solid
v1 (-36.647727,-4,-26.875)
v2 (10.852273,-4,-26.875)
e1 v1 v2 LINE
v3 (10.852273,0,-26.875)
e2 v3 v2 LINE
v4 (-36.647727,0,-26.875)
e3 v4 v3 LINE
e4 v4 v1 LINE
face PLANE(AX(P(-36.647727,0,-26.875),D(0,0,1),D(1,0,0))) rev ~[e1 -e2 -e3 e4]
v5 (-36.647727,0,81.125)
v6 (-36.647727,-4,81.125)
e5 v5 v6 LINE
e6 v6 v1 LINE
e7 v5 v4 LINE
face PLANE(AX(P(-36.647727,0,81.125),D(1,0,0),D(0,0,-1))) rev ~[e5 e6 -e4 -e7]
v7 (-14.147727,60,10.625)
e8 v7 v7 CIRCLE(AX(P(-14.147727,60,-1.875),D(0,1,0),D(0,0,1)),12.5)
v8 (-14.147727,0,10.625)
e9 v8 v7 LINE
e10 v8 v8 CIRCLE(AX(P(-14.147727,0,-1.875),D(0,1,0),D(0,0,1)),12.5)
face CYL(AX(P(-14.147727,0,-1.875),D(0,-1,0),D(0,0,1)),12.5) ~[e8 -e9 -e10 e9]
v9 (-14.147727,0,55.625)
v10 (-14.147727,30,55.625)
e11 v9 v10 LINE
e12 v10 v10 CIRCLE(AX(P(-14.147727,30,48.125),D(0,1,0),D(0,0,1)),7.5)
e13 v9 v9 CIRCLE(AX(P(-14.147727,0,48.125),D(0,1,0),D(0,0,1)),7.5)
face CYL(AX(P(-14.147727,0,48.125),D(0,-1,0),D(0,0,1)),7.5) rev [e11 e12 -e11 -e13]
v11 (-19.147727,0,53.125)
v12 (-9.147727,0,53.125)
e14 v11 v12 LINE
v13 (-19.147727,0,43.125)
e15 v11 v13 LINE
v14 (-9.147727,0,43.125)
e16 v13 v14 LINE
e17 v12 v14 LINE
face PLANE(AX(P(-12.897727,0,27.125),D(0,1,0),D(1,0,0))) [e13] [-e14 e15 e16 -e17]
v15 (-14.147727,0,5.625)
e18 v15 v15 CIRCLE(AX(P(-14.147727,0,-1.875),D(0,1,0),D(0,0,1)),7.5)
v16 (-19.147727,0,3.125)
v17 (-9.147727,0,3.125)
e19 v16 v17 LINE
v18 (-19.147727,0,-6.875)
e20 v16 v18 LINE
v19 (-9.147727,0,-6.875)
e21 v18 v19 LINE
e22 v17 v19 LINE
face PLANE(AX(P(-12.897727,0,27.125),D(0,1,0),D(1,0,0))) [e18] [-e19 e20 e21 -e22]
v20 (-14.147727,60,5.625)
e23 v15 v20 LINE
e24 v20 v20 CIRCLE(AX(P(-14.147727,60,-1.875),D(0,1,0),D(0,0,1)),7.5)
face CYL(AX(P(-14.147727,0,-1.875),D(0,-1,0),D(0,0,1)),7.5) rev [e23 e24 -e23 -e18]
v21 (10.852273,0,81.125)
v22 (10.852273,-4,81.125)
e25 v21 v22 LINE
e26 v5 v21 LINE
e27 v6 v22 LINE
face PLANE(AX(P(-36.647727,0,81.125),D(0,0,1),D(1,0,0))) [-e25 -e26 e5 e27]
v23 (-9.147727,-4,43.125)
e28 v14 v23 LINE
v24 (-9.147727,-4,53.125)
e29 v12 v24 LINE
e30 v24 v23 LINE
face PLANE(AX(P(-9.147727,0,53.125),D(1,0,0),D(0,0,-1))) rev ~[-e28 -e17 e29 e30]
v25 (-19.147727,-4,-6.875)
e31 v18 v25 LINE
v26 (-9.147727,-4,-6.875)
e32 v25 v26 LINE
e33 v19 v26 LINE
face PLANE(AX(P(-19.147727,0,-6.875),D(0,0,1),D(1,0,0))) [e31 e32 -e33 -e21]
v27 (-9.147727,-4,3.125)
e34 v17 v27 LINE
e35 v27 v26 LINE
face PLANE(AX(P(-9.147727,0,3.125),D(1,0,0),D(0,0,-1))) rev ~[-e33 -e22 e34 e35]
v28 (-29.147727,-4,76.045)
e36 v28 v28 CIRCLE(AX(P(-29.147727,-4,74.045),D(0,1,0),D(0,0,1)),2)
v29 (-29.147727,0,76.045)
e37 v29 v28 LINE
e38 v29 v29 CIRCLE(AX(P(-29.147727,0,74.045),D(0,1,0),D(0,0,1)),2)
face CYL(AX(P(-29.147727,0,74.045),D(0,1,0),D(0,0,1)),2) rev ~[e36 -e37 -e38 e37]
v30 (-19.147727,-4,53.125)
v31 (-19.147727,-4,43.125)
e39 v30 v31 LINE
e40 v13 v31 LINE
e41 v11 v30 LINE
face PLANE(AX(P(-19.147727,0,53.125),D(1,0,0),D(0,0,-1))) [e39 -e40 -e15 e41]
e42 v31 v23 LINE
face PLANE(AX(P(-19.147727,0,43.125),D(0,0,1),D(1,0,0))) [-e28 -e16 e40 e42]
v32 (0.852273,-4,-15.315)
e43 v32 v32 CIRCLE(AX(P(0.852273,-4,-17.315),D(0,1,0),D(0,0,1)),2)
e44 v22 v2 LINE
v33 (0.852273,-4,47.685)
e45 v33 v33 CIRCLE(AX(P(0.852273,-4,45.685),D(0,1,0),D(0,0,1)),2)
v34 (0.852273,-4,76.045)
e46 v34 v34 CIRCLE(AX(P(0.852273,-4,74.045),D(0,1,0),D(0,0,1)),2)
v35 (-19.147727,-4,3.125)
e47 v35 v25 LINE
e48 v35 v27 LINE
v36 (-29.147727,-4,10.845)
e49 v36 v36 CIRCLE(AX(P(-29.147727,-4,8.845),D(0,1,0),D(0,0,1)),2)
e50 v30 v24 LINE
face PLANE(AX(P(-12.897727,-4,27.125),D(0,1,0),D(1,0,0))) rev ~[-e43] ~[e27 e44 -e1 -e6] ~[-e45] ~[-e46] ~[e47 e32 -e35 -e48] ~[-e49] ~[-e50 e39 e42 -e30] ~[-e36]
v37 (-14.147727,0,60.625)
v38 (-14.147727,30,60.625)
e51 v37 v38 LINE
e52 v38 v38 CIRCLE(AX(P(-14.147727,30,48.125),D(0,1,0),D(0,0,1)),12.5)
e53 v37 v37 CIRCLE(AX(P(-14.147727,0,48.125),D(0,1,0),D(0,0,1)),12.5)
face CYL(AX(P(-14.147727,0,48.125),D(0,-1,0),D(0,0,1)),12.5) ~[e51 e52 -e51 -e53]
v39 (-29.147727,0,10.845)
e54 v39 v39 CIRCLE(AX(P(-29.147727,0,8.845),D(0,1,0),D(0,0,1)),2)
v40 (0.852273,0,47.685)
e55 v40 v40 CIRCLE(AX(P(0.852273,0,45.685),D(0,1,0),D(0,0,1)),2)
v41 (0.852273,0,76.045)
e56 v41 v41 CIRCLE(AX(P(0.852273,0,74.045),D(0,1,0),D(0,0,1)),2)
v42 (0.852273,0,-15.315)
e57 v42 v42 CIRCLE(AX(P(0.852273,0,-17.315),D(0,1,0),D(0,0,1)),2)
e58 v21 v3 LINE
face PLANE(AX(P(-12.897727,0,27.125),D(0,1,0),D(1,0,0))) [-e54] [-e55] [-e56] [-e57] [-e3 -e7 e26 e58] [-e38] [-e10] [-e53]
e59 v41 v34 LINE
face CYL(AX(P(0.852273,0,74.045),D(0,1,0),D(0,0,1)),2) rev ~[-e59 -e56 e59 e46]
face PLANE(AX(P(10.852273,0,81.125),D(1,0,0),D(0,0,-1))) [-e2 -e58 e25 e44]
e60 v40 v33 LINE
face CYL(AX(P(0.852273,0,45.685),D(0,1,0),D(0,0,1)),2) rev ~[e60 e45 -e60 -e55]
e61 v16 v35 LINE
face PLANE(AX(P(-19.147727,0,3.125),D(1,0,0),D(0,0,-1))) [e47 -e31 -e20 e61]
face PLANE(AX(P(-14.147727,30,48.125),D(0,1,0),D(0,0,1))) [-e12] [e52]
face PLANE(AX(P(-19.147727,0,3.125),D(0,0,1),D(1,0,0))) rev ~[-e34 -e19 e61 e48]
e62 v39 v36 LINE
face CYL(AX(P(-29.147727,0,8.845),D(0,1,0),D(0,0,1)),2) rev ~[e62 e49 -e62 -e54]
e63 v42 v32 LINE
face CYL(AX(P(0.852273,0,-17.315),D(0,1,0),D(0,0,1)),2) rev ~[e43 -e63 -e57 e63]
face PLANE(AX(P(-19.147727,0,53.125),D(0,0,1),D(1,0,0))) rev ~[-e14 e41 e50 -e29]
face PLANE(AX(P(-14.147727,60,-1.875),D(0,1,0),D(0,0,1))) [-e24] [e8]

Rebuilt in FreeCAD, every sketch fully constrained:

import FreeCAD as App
import Part
import Sketcher
from FreeCAD import Vector


def add_polygon(sketch, points):
    """Adds a closed chain of lines whose ends are joined by coincident constraints."""
    first, n = sketch.GeometryCount, len(points)
    for a, b in zip(points, points[1:] + points[:1]):
        sketch.addGeometry(Part.LineSegment(App.Vector(*a, 0), App.Vector(*b, 0)), False)
    for i in range(n):
        sketch.addConstraint(Sketcher.Constraint("Coincident", first + i, 2, first + (i + 1) % n, 1))

doc = App.newDocument("Part")
body = doc.addObject("PartDesign::Body", "Body")

sketch1 = body.newObject("Sketcher::SketchObject", "Sketch")
sketch1.AttachmentSupport = (doc.getObject("XZ_Plane"), [""])
sketch1.MapMode = "FlatFace"
add_polygon(sketch1, [(-36.647727, -26.875), (-36.647727, 81.125), (10.852273, 81.125), (10.852273, -26.875)])
sketch1.addGeometry(Part.Circle(Vector(-29.147727, 74.045, 0), Vector(0, 0, 1), 2), False)
sketch1.addGeometry(Part.Circle(Vector(0.852273, 74.045, 0), Vector(0, 0, 1), 2), False)
add_polygon(sketch1, [(-9.147727, 53.125), (-19.147727, 53.125), (-19.147727, 43.125), (-9.147727, 43.125)])
sketch1.addGeometry(Part.Circle(Vector(0.852273, 45.685, 0), Vector(0, 0, 1), 2), False)
sketch1.addGeometry(Part.Circle(Vector(-29.147727, 8.845, 0), Vector(0, 0, 1), 2), False)
add_polygon(sketch1, [(-9.147727, 3.125), (-19.147727, 3.125), (-19.147727, -6.875), (-9.147727, -6.875)])
sketch1.addGeometry(Part.Circle(Vector(0.852273, -17.315, 0), Vector(0, 0, 1), 2), False)
sketch1.addConstraint(Sketcher.Constraint("Vertical", 0))
sketch1.addConstraint(Sketcher.Constraint("Horizontal", 1))
sketch1.addConstraint(Sketcher.Constraint("Vertical", 2))
sketch1.addConstraint(Sketcher.Constraint("Horizontal", 3))
sketch1.addConstraint(Sketcher.Constraint("Horizontal", 6))
sketch1.addConstraint(Sketcher.Constraint("Vertical", 7))
sketch1.addConstraint(Sketcher.Constraint("Horizontal", 8))
sketch1.addConstraint(Sketcher.Constraint("Vertical", 9))
sketch1.addConstraint(Sketcher.Constraint("Horizontal", 12))
sketch1.addConstraint(Sketcher.Constraint("Vertical", 13))
sketch1.addConstraint(Sketcher.Constraint("Horizontal", 14))
sketch1.addConstraint(Sketcher.Constraint("Vertical", 15))
sketch1.addConstraint(Sketcher.Constraint("Equal", 4, 5))
sketch1.addConstraint(Sketcher.Constraint("Equal", 5, 10))
sketch1.addConstraint(Sketcher.Constraint("Equal", 10, 11))
sketch1.addConstraint(Sketcher.Constraint("Equal", 11, 16))
sketch1.addConstraint(Sketcher.Constraint("Horizontal", 4, 3, 5, 3))
sketch1.addConstraint(Sketcher.Constraint("Vertical", 5, 3, 10, 3))
sketch1.addConstraint(Sketcher.Constraint("Vertical", 4, 3, 11, 3))
sketch1.addConstraint(Sketcher.Constraint("Vertical", 10, 3, 16, 3))
sketch1.addConstraint(Sketcher.Constraint("Vertical", 7, 2, 12, 2))
sketch1.addConstraint(Sketcher.Constraint("Vertical", 9, 2, 14, 2))
sketch1.addConstraint(Sketcher.Constraint("Equal", 14, 7))
sketch1.addConstraint(Sketcher.Constraint("Equal", 9, 13))
sketch1.addConstraint(Sketcher.Constraint("Diameter", 4, 4.0))
sketch1.addConstraint(Sketcher.Constraint("DistanceX", 6, 2, 6, 1, 10.0))
sketch1.addConstraint(Sketcher.Constraint("DistanceY", 0, 1, 0, 2, 108.0))
sketch1.addConstraint(Sketcher.Constraint("DistanceX", 1, 1, 1, 2, 47.5))
sketch1.addConstraint(Sketcher.Constraint("DistanceX", 4, 3, 5, 3, 30.0))
sketch1.addConstraint(Sketcher.Constraint("DistanceY", 16, 3, 10, 3, 63.0))
sketch1.addConstraint(Sketcher.Constraint("DistanceX", 5, 3, 1, 2, 10.0))
sketch1.addConstraint(Sketcher.Constraint("DistanceX", 6, 2, 10, 3, 20.0))
sketch1.addConstraint(Sketcher.Constraint("DistanceY", 6, 2, 0, 2, 28.0))
sketch1.addConstraint(Sketcher.Constraint("DistanceY", 3, 2, 12, 2, 30.0))
sketch1.addConstraint(Sketcher.Constraint("DistanceY", 11, 3, 4, 3, 65.2))
sketch1.addConstraint(Sketcher.Constraint("DistanceY", 10, 3, 5, 3, 28.36))
sketch1.addConstraint(Sketcher.Constraint("DistanceY", 4, 3, 0, 2, 7.08))
sketch1.addConstraint(Sketcher.Constraint("DistanceY", -1, 1, 4, 3, 74.045))
sketch1.addConstraint(Sketcher.Constraint("DistanceX", 4, 3, -1, 1, 29.147727))
pad1 = body.newObject("PartDesign::Pad", "Pad")
pad1.Profile = sketch1
pad1.Length = 4

sketch2 = body.newObject("Sketcher::SketchObject", "Sketch001")
sketch2.AttachmentSupport = (doc.getObject("XZ_Plane"), [""])
sketch2.MapMode = "FlatFace"
sketch2.addGeometry(Part.Circle(Vector(-14.147727, 48.125, 0), Vector(0, 0, 1), 12.5), False)
sketch2.addGeometry(Part.Circle(Vector(-14.147727, 48.125, 0), Vector(0, 0, 1), 7.5), False)
sketch2.addConstraint(Sketcher.Constraint("Coincident", 1, 3, 0, 3))
sketch2.addConstraint(Sketcher.Constraint("Diameter", 0, 25.0))
sketch2.addConstraint(Sketcher.Constraint("Diameter", 1, 15.0))
sketch2.addConstraint(Sketcher.Constraint("DistanceY", -1, 1, 0, 3, 48.125))
sketch2.addConstraint(Sketcher.Constraint("DistanceX", 0, 3, -1, 1, 14.147727))
pad2 = body.newObject("PartDesign::Pad", "Pad001")
pad2.Profile = sketch2
pad2.Length = 30
pad2.Reversed = True

sketch3 = body.newObject("Sketcher::SketchObject", "Sketch002")
sketch3.AttachmentSupport = (doc.getObject("XZ_Plane"), [""])
sketch3.MapMode = "FlatFace"
sketch3.addGeometry(Part.Circle(Vector(-14.147727, -1.875, 0), Vector(0, 0, 1), 12.5), False)
sketch3.addGeometry(Part.Circle(Vector(-14.147727, -1.875, 0), Vector(0, 0, 1), 7.5), False)
sketch3.addConstraint(Sketcher.Constraint("Coincident", 1, 3, 0, 3))
sketch3.addConstraint(Sketcher.Constraint("Diameter", 0, 25.0))
sketch3.addConstraint(Sketcher.Constraint("Diameter", 1, 15.0))
sketch3.addConstraint(Sketcher.Constraint("DistanceY", 0, 3, -1, 1, 1.875))
sketch3.addConstraint(Sketcher.Constraint("DistanceX", 0, 3, -1, 1, 14.147727))
pad3 = body.newObject("PartDesign::Pad", "Pad002")
pad3.Profile = sketch3
pad3.Length = 60
pad3.Reversed = True

doc.recompute()
